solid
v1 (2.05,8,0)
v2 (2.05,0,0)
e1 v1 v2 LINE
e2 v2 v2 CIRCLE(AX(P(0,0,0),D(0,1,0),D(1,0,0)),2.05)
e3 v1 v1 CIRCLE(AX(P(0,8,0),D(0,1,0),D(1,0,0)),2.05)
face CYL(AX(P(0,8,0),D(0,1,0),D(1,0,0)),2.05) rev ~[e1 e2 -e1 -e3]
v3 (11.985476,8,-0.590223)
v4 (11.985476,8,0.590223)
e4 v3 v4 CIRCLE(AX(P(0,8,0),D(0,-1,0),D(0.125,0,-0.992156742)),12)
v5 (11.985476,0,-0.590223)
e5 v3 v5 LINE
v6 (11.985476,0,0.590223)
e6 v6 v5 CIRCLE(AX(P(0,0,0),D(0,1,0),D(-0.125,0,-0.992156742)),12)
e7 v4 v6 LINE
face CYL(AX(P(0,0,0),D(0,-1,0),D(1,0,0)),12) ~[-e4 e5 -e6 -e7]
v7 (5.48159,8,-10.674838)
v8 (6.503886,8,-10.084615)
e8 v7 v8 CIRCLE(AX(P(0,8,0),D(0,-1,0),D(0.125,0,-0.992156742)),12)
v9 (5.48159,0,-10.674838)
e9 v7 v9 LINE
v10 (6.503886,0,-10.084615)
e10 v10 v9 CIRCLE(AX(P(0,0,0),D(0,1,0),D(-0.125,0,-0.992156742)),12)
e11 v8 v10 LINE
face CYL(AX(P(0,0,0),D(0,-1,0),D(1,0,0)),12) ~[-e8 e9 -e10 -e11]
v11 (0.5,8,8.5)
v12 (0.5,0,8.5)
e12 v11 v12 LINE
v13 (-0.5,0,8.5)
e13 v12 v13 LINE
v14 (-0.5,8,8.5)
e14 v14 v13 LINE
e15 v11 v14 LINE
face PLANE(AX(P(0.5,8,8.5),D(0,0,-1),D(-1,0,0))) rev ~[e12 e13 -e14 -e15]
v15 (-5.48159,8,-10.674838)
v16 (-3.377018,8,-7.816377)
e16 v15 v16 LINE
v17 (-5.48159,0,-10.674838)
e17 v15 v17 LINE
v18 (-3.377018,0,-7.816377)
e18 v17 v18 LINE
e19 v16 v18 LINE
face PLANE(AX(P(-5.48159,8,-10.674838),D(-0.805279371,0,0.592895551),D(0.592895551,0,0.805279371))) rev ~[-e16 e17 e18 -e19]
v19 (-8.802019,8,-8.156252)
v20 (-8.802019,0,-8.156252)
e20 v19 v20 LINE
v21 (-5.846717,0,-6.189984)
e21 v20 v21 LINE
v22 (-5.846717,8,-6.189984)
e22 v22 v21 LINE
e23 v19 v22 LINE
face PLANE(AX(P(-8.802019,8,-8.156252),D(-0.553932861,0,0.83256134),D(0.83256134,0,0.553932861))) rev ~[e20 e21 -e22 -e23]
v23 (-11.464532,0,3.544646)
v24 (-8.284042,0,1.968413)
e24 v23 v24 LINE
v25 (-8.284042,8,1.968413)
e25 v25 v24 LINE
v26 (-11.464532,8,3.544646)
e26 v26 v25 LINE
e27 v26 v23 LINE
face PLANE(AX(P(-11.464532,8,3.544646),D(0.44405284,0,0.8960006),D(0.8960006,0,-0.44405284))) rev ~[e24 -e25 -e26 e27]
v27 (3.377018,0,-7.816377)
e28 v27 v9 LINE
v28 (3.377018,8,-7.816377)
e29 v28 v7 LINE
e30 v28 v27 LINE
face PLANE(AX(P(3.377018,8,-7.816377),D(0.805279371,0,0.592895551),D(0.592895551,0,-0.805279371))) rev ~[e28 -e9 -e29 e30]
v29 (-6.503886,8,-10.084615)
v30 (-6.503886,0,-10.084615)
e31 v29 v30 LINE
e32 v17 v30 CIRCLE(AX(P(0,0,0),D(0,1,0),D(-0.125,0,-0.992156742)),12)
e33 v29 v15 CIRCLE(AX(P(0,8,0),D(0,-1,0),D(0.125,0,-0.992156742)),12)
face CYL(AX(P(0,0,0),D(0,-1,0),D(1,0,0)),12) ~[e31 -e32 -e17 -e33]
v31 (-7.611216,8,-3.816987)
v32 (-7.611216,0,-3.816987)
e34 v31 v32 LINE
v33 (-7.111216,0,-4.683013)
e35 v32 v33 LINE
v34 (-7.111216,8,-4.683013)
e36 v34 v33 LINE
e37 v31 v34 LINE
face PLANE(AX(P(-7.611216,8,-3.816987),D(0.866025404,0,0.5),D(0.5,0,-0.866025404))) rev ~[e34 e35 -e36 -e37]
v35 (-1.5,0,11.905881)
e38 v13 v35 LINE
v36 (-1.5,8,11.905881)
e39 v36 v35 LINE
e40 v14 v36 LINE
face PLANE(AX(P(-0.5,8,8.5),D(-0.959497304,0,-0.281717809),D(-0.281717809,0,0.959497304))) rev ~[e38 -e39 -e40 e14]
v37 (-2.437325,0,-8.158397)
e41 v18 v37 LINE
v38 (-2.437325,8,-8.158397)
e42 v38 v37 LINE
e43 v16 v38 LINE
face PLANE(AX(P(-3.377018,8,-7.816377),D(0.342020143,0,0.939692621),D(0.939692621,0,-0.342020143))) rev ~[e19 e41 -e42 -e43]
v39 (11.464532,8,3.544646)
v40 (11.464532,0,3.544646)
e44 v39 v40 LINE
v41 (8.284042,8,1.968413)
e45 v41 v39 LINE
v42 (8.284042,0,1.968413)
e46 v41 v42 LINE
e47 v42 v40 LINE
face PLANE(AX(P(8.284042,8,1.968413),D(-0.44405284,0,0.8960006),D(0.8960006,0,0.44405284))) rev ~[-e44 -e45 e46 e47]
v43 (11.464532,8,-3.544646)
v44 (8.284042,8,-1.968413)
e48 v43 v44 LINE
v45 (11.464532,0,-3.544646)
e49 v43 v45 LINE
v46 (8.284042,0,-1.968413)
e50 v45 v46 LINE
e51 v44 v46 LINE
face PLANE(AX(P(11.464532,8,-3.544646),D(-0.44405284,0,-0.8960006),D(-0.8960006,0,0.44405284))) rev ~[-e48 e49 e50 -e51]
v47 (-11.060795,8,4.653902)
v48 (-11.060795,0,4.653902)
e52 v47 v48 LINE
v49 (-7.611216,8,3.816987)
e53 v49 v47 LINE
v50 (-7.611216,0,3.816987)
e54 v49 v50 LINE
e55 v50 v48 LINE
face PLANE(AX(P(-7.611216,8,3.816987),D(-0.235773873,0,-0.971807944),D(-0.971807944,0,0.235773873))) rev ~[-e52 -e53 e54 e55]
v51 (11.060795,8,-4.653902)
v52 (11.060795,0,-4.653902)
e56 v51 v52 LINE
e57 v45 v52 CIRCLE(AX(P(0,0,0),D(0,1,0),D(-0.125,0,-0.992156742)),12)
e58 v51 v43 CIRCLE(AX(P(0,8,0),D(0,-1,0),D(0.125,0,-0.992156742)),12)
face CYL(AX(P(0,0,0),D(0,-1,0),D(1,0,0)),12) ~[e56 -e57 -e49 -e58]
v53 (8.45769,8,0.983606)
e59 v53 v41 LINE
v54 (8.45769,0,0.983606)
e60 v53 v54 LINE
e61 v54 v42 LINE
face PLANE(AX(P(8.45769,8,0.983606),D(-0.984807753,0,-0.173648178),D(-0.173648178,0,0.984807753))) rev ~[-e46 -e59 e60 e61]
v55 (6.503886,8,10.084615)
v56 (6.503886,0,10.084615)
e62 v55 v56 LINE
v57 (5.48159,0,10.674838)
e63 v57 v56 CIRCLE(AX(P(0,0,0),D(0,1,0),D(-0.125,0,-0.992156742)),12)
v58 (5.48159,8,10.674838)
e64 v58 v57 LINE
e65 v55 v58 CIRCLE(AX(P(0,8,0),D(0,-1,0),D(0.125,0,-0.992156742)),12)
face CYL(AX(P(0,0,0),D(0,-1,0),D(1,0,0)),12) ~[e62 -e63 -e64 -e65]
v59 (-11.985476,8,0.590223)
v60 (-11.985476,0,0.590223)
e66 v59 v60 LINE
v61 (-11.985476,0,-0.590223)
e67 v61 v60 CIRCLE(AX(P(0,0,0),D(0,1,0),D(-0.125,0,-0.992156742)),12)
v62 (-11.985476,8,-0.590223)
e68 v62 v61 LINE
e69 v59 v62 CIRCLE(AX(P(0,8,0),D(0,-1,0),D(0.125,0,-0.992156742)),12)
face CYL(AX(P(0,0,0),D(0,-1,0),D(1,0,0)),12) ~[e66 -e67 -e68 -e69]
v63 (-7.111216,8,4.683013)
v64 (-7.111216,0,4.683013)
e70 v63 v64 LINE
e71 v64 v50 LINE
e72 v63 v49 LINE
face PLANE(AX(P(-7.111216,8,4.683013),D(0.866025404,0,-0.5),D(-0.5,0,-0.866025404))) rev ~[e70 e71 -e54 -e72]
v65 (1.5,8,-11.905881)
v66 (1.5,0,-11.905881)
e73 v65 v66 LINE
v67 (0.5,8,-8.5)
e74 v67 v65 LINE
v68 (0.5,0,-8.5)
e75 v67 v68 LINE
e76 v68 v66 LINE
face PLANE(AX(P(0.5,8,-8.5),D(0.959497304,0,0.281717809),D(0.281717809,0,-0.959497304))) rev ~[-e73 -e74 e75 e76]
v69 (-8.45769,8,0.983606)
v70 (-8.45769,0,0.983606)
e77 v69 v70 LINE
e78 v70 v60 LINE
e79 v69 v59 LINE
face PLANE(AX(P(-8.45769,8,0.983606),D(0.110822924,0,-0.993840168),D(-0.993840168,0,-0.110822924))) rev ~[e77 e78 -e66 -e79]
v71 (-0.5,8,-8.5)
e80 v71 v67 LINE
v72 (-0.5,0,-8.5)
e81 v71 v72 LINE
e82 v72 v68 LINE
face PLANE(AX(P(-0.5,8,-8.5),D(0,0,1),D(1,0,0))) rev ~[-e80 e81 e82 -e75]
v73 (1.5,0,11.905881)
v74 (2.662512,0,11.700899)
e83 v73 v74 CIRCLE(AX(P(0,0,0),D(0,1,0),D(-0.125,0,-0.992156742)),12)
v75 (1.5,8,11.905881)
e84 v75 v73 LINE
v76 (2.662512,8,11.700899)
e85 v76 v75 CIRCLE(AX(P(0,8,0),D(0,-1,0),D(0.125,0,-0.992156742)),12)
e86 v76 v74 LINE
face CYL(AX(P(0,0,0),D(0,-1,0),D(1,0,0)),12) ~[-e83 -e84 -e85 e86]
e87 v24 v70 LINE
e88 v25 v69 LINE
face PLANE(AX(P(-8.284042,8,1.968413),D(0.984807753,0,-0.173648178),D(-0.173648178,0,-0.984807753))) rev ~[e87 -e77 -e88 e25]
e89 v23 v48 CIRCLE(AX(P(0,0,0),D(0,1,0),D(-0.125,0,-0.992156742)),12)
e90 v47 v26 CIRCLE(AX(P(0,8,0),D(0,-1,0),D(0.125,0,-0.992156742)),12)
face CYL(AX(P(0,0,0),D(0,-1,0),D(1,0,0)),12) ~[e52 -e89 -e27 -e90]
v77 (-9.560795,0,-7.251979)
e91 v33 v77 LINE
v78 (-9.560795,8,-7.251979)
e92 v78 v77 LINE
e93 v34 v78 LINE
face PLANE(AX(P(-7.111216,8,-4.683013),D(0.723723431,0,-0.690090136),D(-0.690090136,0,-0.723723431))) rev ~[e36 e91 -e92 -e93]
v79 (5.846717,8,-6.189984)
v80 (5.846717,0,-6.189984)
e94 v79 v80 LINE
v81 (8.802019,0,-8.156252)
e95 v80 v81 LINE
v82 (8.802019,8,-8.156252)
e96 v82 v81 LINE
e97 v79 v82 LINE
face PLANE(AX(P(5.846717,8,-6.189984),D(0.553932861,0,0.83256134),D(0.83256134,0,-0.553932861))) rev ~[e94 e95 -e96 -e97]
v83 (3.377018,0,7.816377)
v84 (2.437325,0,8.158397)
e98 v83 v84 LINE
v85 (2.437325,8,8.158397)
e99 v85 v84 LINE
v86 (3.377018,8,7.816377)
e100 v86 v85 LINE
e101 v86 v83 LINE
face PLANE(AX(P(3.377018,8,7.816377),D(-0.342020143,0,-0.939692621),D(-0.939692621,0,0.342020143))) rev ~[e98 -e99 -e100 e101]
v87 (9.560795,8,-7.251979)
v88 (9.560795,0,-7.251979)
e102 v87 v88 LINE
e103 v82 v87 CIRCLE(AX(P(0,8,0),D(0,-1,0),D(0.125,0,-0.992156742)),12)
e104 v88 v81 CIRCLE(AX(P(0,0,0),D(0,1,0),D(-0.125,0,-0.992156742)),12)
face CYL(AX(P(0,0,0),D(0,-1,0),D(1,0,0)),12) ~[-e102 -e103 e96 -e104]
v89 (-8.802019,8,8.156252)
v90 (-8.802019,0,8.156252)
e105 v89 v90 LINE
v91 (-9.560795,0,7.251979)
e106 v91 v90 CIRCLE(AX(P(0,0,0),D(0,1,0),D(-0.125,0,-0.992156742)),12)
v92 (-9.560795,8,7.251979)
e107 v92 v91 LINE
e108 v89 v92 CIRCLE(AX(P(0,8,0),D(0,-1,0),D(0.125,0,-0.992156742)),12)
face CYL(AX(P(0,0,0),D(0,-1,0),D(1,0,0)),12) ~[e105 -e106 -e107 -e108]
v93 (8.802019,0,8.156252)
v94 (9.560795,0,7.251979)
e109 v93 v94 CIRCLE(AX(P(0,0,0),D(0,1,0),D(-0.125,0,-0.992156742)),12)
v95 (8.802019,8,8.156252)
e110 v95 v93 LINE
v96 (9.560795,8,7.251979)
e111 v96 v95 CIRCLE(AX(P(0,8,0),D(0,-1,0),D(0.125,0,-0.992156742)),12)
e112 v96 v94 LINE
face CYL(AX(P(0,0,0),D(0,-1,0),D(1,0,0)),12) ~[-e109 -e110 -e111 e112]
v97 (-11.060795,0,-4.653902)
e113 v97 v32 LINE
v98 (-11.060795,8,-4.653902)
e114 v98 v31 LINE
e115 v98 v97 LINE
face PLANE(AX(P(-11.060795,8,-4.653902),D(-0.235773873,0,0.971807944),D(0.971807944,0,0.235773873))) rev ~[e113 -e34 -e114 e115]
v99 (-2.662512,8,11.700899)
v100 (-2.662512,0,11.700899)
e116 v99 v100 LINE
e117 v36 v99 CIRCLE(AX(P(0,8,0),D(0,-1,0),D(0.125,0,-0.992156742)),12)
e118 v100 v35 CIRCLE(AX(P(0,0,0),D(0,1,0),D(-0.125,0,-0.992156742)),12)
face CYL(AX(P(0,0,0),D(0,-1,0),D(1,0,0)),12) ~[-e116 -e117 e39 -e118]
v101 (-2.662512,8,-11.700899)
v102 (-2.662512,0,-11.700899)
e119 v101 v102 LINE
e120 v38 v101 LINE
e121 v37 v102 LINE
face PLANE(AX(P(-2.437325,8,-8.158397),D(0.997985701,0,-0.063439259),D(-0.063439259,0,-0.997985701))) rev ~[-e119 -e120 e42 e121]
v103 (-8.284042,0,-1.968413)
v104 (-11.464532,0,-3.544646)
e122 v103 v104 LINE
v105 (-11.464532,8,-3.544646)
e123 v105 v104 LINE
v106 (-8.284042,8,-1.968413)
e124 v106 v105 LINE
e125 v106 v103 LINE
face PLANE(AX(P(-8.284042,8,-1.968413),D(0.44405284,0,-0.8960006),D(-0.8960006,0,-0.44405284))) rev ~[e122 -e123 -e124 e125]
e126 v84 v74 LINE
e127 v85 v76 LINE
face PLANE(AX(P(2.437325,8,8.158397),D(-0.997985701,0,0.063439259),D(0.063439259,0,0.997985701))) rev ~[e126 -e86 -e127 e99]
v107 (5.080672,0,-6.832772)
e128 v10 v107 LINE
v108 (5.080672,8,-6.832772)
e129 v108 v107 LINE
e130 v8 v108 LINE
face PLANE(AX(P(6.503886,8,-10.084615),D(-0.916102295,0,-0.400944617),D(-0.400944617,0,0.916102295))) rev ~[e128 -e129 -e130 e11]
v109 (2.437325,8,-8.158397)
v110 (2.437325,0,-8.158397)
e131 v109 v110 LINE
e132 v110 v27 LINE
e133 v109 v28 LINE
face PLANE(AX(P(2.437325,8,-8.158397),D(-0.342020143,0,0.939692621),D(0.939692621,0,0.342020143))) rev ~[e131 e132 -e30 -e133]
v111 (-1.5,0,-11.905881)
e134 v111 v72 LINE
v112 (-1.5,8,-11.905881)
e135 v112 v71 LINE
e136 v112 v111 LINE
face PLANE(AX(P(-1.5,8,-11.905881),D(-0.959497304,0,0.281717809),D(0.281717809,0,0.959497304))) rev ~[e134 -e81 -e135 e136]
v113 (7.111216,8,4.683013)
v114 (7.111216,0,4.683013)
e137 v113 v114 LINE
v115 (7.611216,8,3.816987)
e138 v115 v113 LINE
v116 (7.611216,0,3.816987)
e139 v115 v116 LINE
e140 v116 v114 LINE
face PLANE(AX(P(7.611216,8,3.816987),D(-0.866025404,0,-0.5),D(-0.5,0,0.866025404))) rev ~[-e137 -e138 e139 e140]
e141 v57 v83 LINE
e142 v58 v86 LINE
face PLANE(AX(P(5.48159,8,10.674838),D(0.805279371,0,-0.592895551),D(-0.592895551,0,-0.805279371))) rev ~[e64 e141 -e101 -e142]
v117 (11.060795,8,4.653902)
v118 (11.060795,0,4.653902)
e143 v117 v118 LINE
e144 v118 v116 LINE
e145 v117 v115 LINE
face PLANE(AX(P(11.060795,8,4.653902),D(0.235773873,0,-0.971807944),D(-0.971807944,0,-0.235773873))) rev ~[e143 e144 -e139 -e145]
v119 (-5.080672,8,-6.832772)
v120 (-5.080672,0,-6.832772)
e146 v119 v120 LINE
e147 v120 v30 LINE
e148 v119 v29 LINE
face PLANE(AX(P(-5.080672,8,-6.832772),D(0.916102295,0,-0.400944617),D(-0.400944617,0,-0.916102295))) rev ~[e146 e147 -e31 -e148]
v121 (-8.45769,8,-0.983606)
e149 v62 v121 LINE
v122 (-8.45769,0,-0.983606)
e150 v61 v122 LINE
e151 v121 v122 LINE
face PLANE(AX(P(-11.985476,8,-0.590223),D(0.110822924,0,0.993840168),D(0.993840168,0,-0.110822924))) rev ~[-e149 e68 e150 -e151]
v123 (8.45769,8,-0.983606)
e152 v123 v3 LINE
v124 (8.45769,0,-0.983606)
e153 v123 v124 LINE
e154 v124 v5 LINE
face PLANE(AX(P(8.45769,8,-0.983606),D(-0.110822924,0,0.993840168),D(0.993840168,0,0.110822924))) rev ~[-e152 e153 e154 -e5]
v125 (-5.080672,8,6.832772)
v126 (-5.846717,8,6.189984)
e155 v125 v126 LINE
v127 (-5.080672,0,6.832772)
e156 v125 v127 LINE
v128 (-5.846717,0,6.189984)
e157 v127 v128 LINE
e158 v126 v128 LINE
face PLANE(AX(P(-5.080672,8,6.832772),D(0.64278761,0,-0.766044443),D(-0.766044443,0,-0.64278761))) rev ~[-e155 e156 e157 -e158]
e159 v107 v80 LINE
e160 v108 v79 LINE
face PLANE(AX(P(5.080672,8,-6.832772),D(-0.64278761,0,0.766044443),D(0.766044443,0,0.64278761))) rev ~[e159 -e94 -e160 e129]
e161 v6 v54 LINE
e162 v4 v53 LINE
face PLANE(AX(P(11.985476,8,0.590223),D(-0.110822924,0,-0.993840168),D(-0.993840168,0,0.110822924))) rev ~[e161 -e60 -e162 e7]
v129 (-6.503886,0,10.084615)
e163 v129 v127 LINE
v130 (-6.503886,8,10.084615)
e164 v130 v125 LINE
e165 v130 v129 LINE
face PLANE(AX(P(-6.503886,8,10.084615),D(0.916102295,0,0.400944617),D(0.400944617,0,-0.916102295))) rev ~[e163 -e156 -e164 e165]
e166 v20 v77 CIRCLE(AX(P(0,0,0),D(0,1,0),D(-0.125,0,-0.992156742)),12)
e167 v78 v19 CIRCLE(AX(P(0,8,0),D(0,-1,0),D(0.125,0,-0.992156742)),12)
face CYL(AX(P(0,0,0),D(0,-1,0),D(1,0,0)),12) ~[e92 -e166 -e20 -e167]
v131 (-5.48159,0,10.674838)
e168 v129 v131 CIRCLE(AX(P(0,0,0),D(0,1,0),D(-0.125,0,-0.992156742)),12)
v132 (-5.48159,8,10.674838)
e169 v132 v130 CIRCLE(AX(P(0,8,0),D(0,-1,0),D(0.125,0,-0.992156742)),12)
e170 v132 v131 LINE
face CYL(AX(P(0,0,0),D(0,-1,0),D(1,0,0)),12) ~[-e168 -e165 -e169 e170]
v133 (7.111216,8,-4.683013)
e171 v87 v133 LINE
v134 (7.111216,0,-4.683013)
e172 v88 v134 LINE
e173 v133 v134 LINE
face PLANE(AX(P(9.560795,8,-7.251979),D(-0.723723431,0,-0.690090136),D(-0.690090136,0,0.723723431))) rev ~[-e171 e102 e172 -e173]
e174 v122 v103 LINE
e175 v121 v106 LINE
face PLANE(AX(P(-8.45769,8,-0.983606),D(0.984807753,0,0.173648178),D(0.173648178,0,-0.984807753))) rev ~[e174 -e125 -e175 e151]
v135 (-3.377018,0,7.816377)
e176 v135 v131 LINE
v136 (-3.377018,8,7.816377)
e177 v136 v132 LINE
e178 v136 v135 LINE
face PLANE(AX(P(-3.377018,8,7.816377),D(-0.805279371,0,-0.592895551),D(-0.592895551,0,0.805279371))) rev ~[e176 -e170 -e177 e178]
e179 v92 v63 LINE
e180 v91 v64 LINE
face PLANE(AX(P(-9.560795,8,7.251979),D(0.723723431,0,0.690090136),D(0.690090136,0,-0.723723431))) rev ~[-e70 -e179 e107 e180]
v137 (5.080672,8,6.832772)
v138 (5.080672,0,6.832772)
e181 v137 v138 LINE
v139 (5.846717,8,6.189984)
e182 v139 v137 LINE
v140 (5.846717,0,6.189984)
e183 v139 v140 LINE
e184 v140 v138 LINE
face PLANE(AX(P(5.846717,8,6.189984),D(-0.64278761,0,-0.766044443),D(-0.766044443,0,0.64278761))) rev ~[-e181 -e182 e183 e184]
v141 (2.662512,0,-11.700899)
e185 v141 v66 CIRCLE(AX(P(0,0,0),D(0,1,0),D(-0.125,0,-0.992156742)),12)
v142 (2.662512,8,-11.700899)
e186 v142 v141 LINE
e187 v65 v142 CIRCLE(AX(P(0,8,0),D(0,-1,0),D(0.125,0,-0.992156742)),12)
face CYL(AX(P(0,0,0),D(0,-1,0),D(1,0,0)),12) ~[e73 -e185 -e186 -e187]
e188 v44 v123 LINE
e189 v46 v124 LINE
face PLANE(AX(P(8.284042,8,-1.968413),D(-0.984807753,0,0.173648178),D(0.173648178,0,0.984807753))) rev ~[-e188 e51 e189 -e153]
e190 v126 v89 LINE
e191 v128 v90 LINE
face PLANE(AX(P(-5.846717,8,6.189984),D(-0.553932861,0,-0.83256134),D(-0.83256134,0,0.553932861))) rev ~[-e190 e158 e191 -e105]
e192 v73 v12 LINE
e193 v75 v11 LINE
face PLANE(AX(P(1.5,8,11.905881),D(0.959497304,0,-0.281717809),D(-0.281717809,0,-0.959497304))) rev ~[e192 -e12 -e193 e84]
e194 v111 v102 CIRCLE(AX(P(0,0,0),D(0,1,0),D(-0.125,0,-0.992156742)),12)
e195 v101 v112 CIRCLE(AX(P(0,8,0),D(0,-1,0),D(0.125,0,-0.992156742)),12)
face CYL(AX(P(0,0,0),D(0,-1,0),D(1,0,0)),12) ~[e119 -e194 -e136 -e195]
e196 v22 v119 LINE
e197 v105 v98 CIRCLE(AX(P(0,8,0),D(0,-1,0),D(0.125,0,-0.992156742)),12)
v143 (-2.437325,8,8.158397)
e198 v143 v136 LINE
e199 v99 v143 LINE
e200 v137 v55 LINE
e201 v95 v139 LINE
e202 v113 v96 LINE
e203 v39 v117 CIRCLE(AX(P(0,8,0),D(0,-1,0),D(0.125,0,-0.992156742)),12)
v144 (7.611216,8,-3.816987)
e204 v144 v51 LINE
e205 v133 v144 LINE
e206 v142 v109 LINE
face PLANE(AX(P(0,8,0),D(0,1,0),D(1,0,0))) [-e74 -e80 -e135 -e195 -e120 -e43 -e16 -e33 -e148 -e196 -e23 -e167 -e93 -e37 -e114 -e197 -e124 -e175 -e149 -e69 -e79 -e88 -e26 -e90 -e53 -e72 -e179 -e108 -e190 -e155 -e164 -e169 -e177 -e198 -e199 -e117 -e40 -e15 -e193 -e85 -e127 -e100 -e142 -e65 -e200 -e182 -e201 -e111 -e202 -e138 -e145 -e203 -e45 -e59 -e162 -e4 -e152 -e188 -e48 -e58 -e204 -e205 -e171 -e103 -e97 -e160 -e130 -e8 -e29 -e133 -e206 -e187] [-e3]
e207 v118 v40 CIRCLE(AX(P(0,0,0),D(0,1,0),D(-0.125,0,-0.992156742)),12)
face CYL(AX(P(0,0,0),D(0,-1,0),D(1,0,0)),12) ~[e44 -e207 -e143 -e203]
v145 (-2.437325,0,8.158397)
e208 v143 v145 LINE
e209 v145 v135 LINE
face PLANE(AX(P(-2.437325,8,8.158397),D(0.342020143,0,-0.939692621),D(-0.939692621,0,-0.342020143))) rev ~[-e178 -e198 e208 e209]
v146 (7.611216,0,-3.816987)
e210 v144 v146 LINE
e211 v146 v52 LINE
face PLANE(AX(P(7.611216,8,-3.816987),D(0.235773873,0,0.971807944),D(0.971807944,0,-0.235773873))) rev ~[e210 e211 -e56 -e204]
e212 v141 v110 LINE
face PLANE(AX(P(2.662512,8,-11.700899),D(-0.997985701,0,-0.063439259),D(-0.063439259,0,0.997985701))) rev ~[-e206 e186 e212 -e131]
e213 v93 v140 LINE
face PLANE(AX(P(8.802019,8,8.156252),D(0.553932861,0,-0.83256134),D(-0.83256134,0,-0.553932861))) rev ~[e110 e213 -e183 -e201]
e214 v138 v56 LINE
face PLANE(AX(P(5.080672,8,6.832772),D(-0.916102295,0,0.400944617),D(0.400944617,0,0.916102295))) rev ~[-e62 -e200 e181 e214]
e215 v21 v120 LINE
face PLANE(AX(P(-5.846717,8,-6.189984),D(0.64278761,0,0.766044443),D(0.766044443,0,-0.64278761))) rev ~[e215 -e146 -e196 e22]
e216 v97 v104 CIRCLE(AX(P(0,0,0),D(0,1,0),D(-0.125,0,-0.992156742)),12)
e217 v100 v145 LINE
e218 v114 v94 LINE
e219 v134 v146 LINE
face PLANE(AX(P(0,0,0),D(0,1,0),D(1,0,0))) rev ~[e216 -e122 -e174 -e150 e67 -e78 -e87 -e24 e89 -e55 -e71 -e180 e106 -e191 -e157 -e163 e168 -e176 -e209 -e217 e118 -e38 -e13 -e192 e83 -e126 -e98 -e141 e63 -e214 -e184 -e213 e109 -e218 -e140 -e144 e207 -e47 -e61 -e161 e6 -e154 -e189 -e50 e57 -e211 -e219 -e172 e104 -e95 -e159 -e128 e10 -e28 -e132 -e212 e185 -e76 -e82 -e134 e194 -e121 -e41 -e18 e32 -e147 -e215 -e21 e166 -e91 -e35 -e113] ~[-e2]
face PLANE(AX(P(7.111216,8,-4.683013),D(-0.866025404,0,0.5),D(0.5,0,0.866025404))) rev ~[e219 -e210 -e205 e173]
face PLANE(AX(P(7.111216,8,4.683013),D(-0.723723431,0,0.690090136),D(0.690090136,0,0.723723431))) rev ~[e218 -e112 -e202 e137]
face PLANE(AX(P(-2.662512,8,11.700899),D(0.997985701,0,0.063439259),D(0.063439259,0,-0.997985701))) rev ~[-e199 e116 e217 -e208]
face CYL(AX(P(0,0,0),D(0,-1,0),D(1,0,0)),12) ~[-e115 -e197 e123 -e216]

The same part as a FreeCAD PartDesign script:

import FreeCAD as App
import Part
import Sketcher

V = App.Vector
Q = App.Units.Quantity


def add_polygon(sketch, points):
    """Adds a closed chain of lines whose ends are joined by coincident constraints."""
    first, n = sketch.GeometryCount, len(points)
    for a, b in zip(points, points[1:] + points[:1]):
        sketch.addGeometry(Part.LineSegment(App.Vector(*a, 0), App.Vector(*b, 0)), False)
    for i in range(n):
        sketch.addConstraint(Sketcher.Constraint("Coincident", first + i, 2, first + (i + 1) % n, 1))

doc = App.newDocument("Part")
body = doc.addObject("PartDesign::Body", "Body")

sketch1 = body.newObject("Sketcher::SketchObject", "Sketch")
sketch1.AttachmentSupport = (doc.getObject("XZ_Plane"), [""])
sketch1.MapMode = "FlatFace"
sketch1.addGeometry(Part.Circle(V(0, 0, 0), V(0, 0, 1), 12), False)
sketch1.addConstraint([
    Sketcher.Constraint("Coincident", 0, 3, -1, 1),
    Sketcher.Constraint("Diameter", 0, Q("24 mm")),
])
pad1 = body.newObject("PartDesign::Pad", "Pad")
pad1.Profile = sketch1
pad1.Length = 8
pad1.Reversed = True

sketch2 = body.newObject("Sketcher::SketchObject", "Sketch001")
sketch2.AttachmentSupport = (doc.getObject("XZ_Plane"), [""])
sketch2.MapMode = "FlatFace"
sketch2.AttachmentOffset = App.Placement(V(0, 0, -8), App.Rotation())
sketch2.addGeometry(Part.Circle(V(0, 0, 0), V(0, 0, 1), 2), False)
sketch2.addConstraint([
    Sketcher.Constraint("Coincident", 0, 3, -1, 1),
    Sketcher.Constraint("Diameter", 0, Q("4.1 mm")),
])
pocket1 = body.newObject("PartDesign::Pocket", "Pocket")
pocket1.Profile = sketch2
pocket1.Type = "ThroughAll"
pocket1.Reversed = True

sketch3 = body.newObject("Sketcher::SketchObject", "Sketch002")
sketch3.AttachmentSupport = (doc.getObject("XZ_Plane"), [""])
sketch3.MapMode = "FlatFace"
sketch3.AttachmentOffset = App.Placement(V(0, 0, -8), App.Rotation())
add_polygon(sketch3, [(0.5, -8.5), (1.5, -11.9), (1.5, -12.7), (-1.5, -12.7), (-1.5, -11.9), (-0.5, -8.5)])
sketch3.addConstraint([
    Sketcher.Constraint("Vertical", 1),
    Sketcher.Constraint("Horizontal", 2),
    Sketcher.Constraint("Vertical", 3),
    Sketcher.Constraint("Horizontal", 5),
    Sketcher.Constraint("Symmetric", 0, 2, 3, 2, -2),
    Sketcher.Constraint("Equal", 0, 4),
    Sketcher.Constraint("DistanceX", 2, 2, 2, 1, Q("3 mm")),
    Sketcher.Constraint("DistanceX", 5, 1, 5, 2, Q("1 mm")),
    Sketcher.Constraint("DistanceY", 4, 2, -1, 1, Q("8.5 mm")),
    Sketcher.Constraint("DistanceY", 1, 2, 1, 1, Q("0.835202 mm")),
    Sketcher.Constraint("Distance", 0, Q("3.549651 mm")),
])
pocket2 = body.newObject("PartDesign::Pocket", "Pocket001")
pocket2.Profile = sketch3
pocket2.Type = "ThroughAll"
pocket2.Reversed = True
doc.recompute()

polarpattern = body.newObject("PartDesign::PolarPattern", "PolarPattern")
polarpattern.Originals = [pocket2]
polarpattern.Axis = (doc.getObject("Y_Axis"), [""])
polarpattern.Angle = 360
polarpattern.Occurrences = 18
body.Tip = polarpattern

doc.recompute()
